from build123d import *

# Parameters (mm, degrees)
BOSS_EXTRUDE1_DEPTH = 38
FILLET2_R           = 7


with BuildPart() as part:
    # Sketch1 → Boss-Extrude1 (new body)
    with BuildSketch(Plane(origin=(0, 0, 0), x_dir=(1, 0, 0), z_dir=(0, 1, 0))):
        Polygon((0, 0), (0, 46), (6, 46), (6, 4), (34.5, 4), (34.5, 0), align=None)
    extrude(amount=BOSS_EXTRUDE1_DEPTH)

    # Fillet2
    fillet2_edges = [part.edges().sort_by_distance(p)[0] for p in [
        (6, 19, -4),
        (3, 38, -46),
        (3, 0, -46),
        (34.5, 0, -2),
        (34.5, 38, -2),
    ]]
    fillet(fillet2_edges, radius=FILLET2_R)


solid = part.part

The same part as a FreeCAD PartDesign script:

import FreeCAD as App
import Part
import Sketcher

V = App.Vector


def edges_at(feature, points):
    """Names of the edges that pass closest to the given points."""
    edges = feature.Shape.Edges
    near = lambda p: min(range(len(edges)), key=lambda i: edges[i].distToShape(Part.Vertex(*p))[0])
    return sorted({f"Edge{near(p) + 1}" for p in points})


def add_polygon(sketch, points):
    """Adds a closed chain of lines whose ends are joined by coincident constraints."""
    first, n = sketch.GeometryCount, len(points)
    for a, b in zip(points, points[1:] + points[:1]):
        sketch.addGeometry(Part.LineSegment(App.Vector(*a, 0), App.Vector(*b, 0)), False)
    for i in range(n):
        sketch.addConstraint(Sketcher.Constraint("Coincident", first + i, 2, first + (i + 1) % n, 1))

doc = App.newDocument("Part")
params = doc.addObject("Spreadsheet::Sheet", "Params")
for row, (alias, value) in enumerate([
    ("sketch1_width", "6 mm"),
    ("sketch1_height", "46 mm"),
    ("sketch1_height2", "4 mm"),
    ("sketch1_width2", "34.5 mm"),
    ("pad1_length", "38 mm"),
    ("fillet_radius", "7 mm"),
], start=1):
    params.set(f"A{row}", alias)
    params.set(f"B{row}", "=" + value)
    params.setAlias(f"B{row}", alias)

body = doc.addObject("PartDesign::Body", "Body")

sketch1 = body.newObject("Sketcher::SketchObject", "Sketch")
sketch1.AttachmentSupport = (doc.getObject("XZ_Plane"), [""])
sketch1.MapMode = "FlatFace"
add_polygon(sketch1, [(0, -46), (0, 0), (34.5, 0), (34.5, -4), (6, -4), (6, -46)])
sketch1.addConstraint([
    Sketcher.Constraint("Vertical", 0),
    Sketcher.Constraint("Horizontal", 1),
    Sketcher.Constraint("Vertical", 2),
    Sketcher.Constraint("Horizontal", 3),
    Sketcher.Constraint("Vertical", 4),
    Sketcher.Constraint("Horizontal", 5),
    Sketcher.Constraint("Coincident", 0, 2, -1, 1),
    Sketcher.Constraint("DistanceX", 5, 2, 5, 1, 6.0),
    Sketcher.Constraint("DistanceY", 0, 1, 0, 2, 46.0),
    Sketcher.Constraint("DistanceY", 2, 2, 2, 1, 4.0),
    Sketcher.Constraint("DistanceX", 1, 1, 1, 2, 34.5),
])
sketch1.setExpression("Constraints[13]", "Params.sketch1_width")
sketch1.setExpression("Constraints[14]", "Params.sketch1_height")
sketch1.setExpression("Constraints[15]", "Params.sketch1_height2")
sketch1.setExpression("Constraints[16]", "Params.sketch1_width2")
pad1 = body.newObject("PartDesign::Pad", "Pad")
pad1.Profile = sketch1
pad1.setExpression("Length", "Params.pad1_length")
pad1.Reversed = True
doc.recompute()

fillet = body.newObject("PartDesign::Fillet", "Fillet")
fillet.Base = (pad1, edges_at(pad1, [
    (6, 19, -4),
    (3, 38, -46),
    (3, 0, -46),
    (34.5, 0, -2),
    (34.5, 38, -2),
]))
fillet.setExpression("Radius", "Params.fillet_radius")

doc.recompute()
